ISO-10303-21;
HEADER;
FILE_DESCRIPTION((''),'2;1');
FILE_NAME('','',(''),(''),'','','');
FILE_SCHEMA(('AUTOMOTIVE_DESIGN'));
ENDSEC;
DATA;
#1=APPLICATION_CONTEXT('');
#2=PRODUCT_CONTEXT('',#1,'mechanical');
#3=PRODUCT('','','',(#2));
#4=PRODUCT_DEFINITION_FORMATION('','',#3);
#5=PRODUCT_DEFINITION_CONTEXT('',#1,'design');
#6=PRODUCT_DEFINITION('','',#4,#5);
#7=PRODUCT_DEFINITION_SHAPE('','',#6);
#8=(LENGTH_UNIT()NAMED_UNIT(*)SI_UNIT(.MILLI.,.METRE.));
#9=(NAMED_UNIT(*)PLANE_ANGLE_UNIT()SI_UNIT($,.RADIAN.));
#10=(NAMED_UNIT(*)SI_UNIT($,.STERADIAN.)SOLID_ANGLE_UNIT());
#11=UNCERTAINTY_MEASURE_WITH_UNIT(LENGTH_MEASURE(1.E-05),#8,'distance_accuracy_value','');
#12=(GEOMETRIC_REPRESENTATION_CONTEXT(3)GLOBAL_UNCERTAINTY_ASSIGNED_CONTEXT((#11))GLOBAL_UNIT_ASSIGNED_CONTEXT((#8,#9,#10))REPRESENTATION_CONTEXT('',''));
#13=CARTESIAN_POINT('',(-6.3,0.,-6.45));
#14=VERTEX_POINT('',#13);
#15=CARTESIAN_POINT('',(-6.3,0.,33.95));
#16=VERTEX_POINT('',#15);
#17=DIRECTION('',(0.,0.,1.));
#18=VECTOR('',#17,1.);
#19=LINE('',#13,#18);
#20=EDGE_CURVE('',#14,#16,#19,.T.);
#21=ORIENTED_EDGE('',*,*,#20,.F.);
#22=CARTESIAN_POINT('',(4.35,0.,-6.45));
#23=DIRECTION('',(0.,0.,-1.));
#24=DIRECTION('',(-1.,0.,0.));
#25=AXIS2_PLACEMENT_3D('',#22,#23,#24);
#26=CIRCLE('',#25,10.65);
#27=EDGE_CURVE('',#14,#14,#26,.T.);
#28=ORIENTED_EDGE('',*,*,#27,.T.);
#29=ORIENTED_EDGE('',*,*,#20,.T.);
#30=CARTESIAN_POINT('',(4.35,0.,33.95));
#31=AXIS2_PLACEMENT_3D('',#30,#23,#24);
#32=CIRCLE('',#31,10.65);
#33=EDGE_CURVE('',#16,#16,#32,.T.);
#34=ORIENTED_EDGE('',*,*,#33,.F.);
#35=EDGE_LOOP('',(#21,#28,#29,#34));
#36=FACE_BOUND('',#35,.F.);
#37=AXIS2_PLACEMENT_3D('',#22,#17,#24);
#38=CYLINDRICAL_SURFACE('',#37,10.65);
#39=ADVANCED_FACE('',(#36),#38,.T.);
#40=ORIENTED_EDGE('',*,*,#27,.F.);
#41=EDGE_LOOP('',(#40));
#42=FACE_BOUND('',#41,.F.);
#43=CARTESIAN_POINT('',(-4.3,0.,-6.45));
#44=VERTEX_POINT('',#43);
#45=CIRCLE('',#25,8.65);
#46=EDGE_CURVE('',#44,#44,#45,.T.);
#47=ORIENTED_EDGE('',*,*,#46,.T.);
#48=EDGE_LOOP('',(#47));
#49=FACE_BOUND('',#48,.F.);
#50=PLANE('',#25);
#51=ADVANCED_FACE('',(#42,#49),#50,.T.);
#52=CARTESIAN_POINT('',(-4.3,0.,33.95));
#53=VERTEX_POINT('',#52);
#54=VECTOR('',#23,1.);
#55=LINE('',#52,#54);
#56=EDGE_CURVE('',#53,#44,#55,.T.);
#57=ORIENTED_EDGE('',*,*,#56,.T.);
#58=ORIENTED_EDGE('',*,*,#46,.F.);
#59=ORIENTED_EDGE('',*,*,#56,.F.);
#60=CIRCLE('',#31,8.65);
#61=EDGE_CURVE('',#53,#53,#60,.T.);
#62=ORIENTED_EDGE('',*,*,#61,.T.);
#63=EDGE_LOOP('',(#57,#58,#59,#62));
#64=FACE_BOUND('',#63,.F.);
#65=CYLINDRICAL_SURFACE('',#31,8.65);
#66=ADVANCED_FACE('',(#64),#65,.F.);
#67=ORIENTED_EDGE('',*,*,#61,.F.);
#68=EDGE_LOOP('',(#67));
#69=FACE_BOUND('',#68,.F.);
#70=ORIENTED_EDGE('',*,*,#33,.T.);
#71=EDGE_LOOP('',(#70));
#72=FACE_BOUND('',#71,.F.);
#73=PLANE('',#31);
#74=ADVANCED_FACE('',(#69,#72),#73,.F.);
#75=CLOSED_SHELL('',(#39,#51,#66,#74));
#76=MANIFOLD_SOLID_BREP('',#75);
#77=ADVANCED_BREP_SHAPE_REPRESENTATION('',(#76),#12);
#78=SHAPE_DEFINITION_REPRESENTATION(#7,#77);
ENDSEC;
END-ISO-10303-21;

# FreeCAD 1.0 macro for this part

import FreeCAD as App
import Part
import Sketcher
Q = App.Units.Quantity

doc = App.newDocument("Part")
params = doc.addObject("Spreadsheet::Sheet", "Params")
for row, (alias, value) in enumerate([
    ("sketch1_width", "2 mm"),
    ("sketch1_height", "40.4 mm"),
    ("revolution_angle", "360 deg"),
], start=1):
    params.set(f"A{row}", alias)
    params.set(f"B{row}", "=" + value)
    params.setAlias(f"B{row}", alias)

body = doc.addObject("PartDesign::Body", "Body")

sketch1 = body.newObject("Sketcher::SketchObject", "Sketch")
sketch1.AttachmentSupport = (doc.getObject("XZ_Plane"), [""])
sketch1.MapMode = "FlatFace"
sketch1.addGeometry(Part.LineSegment(App.Vector(-6.3, -6.5, 0), App.Vector(-6.3, 34, 0)), False)
sketch1.addGeometry(Part.LineSegment(App.Vector(-6.3, 34, 0), App.Vector(-4.3, 34, 0)), False)
sketch1.addGeometry(Part.LineSegment(App.Vector(-4.3, 34, 0), App.Vector(-4.3, -6.5, 0)), False)
sketch1.addGeometry(Part.LineSegment(App.Vector(-4.3, -6.5, 0), App.Vector(-6.3, -6.5, 0)), False)
sketch1.addGeometry(Part.LineSegment(App.Vector(4.3, 34, 0), App.Vector(4.3, -6.5, 0)), True)
sketch1.addConstraint(Sketcher.Constraint("Coincident", 0, 2, 1, 1))
sketch1.addConstraint(Sketcher.Constraint("Coincident", 1, 2, 2, 1))
sketch1.addConstraint(Sketcher.Constraint("Coincident", 2, 2, 3, 1))
sketch1.addConstraint(Sketcher.Constraint("Coincident", 3, 2, 0, 1))
sketch1.addConstraint(Sketcher.Constraint("Vertical", 0))
sketch1.addConstraint(Sketcher.Constraint("Horizontal", 1))
sketch1.addConstraint(Sketcher.Constraint("Vertical", 2))
sketch1.addConstraint(Sketcher.Constraint("Horizontal", 3))
sketch1.addConstraint(Sketcher.Constraint("Vertical", 4))
sketch1.addConstraint(Sketcher.Constraint("Horizontal", 1, 2, 4, 1))
sketch1.addConstraint(Sketcher.Constraint("Horizontal", 3, 2, 4, 2))
sketch1.addConstraint(Sketcher.Constraint("DistanceX", 1, 1, 1, 2, Q("2 mm")))
sketch1.addConstraint(Sketcher.Constraint("DistanceY", 0, 1, 0, 2, Q("40.4 mm")))
sketch1.addConstraint(Sketcher.Constraint("DistanceX", 0, 2, -1, 1, Q("6.3 mm")))
sketch1.addConstraint(Sketcher.Constraint("DistanceY", -1, 1, 0, 2, Q("33.95 mm")))
sketch1.addConstraint(Sketcher.Constraint("DistanceX", -1, 1, 4, 1, Q("4.35 mm")))
sketch1.setExpression("Constraints[11]", "Params.sketch1_width")
sketch1.setExpression("Constraints[12]", "Params.sketch1_height")
revolution = body.newObject("PartDesign::Revolution", "Revolution")
revolution.Profile = sketch1
revolution.ReferenceAxis = (sketch1, ["Axis0"])
revolution.setExpression("Angle", "Params.revolution_angle")

doc.recompute()
